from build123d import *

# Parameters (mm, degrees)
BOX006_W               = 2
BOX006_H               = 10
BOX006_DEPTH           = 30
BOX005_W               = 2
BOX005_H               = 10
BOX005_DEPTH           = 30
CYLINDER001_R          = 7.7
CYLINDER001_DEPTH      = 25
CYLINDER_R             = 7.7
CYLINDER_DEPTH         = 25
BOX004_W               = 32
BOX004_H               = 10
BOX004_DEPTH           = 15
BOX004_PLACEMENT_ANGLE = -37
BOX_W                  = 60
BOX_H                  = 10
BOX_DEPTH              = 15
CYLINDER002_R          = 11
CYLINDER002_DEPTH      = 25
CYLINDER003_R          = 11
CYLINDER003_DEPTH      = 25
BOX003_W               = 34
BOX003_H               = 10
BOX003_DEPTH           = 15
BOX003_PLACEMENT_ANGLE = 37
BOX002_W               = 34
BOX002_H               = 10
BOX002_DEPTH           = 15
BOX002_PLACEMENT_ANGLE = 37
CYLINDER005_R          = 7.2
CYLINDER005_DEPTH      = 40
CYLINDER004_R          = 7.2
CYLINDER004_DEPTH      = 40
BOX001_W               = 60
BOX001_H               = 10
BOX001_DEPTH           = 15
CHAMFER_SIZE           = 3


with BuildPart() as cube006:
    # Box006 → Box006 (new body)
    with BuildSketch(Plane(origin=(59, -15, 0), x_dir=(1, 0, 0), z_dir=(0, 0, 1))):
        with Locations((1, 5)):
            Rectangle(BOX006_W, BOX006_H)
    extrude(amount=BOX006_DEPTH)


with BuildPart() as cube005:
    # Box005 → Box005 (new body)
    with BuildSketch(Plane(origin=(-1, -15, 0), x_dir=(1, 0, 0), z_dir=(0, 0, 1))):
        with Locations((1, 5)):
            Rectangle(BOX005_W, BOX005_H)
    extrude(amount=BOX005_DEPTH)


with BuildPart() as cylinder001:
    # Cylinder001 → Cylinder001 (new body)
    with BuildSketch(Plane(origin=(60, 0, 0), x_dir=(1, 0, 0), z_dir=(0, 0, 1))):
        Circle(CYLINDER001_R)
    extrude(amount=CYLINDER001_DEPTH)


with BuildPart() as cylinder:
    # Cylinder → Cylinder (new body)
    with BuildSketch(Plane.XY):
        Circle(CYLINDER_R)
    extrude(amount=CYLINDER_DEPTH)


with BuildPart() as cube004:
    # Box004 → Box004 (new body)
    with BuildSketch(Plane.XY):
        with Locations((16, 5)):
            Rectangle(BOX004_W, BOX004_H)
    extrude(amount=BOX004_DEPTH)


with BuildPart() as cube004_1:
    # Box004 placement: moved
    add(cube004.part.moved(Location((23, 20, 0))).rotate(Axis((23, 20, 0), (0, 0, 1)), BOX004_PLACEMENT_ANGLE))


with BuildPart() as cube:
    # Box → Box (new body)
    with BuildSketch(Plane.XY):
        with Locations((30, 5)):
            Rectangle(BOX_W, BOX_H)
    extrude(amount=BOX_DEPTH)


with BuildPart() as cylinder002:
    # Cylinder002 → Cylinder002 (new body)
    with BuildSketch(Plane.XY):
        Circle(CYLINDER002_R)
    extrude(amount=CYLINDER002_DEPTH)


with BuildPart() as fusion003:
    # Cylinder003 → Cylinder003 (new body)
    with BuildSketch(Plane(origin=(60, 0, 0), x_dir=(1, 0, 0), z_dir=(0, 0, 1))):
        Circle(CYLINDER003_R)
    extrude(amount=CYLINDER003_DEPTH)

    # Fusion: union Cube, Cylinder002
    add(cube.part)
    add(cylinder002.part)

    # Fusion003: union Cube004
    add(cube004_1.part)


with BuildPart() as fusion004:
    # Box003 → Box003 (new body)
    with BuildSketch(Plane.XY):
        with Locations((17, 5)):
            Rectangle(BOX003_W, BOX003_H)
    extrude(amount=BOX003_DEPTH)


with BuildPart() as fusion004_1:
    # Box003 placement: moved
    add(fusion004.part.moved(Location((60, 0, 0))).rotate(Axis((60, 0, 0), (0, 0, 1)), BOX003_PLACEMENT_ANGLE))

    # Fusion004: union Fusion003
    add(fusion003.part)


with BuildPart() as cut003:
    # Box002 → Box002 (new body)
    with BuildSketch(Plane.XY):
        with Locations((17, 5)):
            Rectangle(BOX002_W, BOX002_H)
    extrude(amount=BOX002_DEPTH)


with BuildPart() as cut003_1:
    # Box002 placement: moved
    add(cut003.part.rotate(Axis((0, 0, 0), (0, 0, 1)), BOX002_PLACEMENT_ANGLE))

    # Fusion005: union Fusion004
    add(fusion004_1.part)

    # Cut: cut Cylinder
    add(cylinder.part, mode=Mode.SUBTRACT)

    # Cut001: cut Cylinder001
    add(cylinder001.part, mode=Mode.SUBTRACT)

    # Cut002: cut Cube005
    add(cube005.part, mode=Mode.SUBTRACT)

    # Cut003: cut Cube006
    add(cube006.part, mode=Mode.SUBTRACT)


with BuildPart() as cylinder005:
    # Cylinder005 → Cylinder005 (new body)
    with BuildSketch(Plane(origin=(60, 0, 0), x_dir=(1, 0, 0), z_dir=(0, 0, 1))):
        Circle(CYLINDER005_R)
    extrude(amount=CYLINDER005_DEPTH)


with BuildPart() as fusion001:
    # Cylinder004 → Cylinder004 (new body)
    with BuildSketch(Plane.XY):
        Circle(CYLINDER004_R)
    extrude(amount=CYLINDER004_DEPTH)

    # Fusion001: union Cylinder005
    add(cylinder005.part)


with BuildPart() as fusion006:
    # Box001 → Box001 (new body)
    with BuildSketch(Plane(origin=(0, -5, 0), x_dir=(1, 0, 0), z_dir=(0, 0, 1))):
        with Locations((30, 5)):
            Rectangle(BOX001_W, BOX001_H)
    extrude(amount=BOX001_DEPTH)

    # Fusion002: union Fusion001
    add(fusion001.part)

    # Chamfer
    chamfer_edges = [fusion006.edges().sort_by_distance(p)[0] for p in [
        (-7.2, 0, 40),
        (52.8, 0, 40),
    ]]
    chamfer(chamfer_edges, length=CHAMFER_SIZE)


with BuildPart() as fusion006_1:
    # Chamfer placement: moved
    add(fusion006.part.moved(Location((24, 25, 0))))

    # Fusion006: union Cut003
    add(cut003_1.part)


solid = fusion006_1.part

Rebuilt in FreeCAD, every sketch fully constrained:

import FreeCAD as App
import Part
import Sketcher
from FreeCAD import Vector


def edges_at(feature, points):
    """Names of the edges that pass closest to the given points."""
    edges = feature.Shape.Edges
    near = lambda p: min(range(len(edges)), key=lambda i: edges[i].distToShape(Part.Vertex(*p))[0])
    return sorted({f"Edge{near(p) + 1}" for p in points})

doc = App.newDocument("Part")
body = doc.addObject("PartDesign::Body", "Body")

sketch1 = body.newObject("Sketcher::SketchObject", "Sketch")
sketch1.AttachmentSupport = (doc.getObject("XY_Plane"), [""])
sketch1.MapMode = "FlatFace"
sketch1.addGeometry(Part.LineSegment(Vector(59, -5, 0), Vector(59, -15, 0)), False)
sketch1.addGeometry(Part.LineSegment(Vector(59, -15, 0), Vector(61, -15, 0)), False)
sketch1.addGeometry(Part.LineSegment(Vector(61, -15, 0), Vector(61, -5, 0)), False)
sketch1.addGeometry(Part.LineSegment(Vector(61, -5, 0), Vector(59, -5, 0)), False)
sketch1.addConstraint(Sketcher.Constraint("Coincident", 0, 2, 1, 1))
sketch1.addConstraint(Sketcher.Constraint("Coincident", 1, 2, 2, 1))
sketch1.addConstraint(Sketcher.Constraint("Coincident", 2, 2, 3, 1))
sketch1.addConstraint(Sketcher.Constraint("Coincident", 3, 2, 0, 1))
sketch1.addConstraint(Sketcher.Constraint("Vertical", 0))
sketch1.addConstraint(Sketcher.Constraint("Horizontal", 1))
sketch1.addConstraint(Sketcher.Constraint("Vertical", 2))
sketch1.addConstraint(Sketcher.Constraint("Horizontal", 3))
sketch1.addConstraint(Sketcher.Constraint("DistanceX", 1, 1, 1, 2, 2.0))
sketch1.addConstraint(Sketcher.Constraint("DistanceY", 0, 2, 0, 1, 10.0))
sketch1.addConstraint(Sketcher.Constraint("DistanceX", -1, 1, 0, 2, 59.0))
sketch1.addConstraint(Sketcher.Constraint("DistanceY", 0, 2, -1, 1, 15.0))
pad1 = body.newObject("PartDesign::Pad", "Pad")
pad1.Profile = sketch1
pad1.Length = 30
body2 = doc.addObject("PartDesign::Body", "Body001")

sketch2 = body2.newObject("Sketcher::SketchObject", "Sketch001")
sketch2.AttachmentSupport = (doc.getObject("XY_Plane001"), [""])
sketch2.MapMode = "FlatFace"
sketch2.addGeometry(Part.LineSegment(Vector(-1, -5, 0), Vector(-1, -15, 0)), False)
sketch2.addGeometry(Part.LineSegment(Vector(-1, -15, 0), Vector(1, -15, 0)), False)
sketch2.addGeometry(Part.LineSegment(Vector(1, -15, 0), Vector(1, -5, 0)), False)
sketch2.addGeometry(Part.LineSegment(Vector(1, -5, 0), Vector(-1, -5, 0)), False)
sketch2.addConstraint(Sketcher.Constraint("Coincident", 0, 2, 1, 1))
sketch2.addConstraint(Sketcher.Constraint("Coincident", 1, 2, 2, 1))
sketch2.addConstraint(Sketcher.Constraint("Coincident", 2, 2, 3, 1))
sketch2.addConstraint(Sketcher.Constraint("Coincident", 3, 2, 0, 1))
sketch2.addConstraint(Sketcher.Constraint("Vertical", 0))
sketch2.addConstraint(Sketcher.Constraint("Horizontal", 1))
sketch2.addConstraint(Sketcher.Constraint("Vertical", 2))
sketch2.addConstraint(Sketcher.Constraint("Horizontal", 3))
sketch2.addConstraint(Sketcher.Constraint("DistanceX", 1, 1, 1, 2, 2.0))
sketch2.addConstraint(Sketcher.Constraint("DistanceY", 0, 2, 0, 1, 10.0))
sketch2.addConstraint(Sketcher.Constraint("DistanceX", 0, 2, -1, 1, 1.0))
sketch2.addConstraint(Sketcher.Constraint("DistanceY", 0, 2, -1, 1, 15.0))
pad2 = body2.newObject("PartDesign::Pad", "Pad001")
pad2.Profile = sketch2
pad2.Length = 30
body3 = doc.addObject("PartDesign::Body", "Body002")

sketch3 = body3.newObject("Sketcher::SketchObject", "Sketch002")
sketch3.AttachmentSupport = (doc.getObject("XY_Plane002"), [""])
sketch3.MapMode = "FlatFace"
sketch3.addGeometry(Part.Circle(Vector(60, 0, 0), Vector(0, 0, 1), 8), False)
sketch3.addConstraint(Sketcher.Constraint("PointOnObject", 0, 3, -1))
sketch3.addConstraint(Sketcher.Constraint("Diameter", 0, 15.4))
sketch3.addConstraint(Sketcher.Constraint("DistanceX", -1, 1, 0, 3, 60.0))
pad3 = body3.newObject("PartDesign::Pad", "Pad002")
pad3.Profile = sketch3
pad3.Length = 25
body4 = doc.addObject("PartDesign::Body", "Body003")

sketch4 = body4.newObject("Sketcher::SketchObject", "Sketch003")
sketch4.AttachmentSupport = (doc.getObject("XY_Plane003"), [""])
sketch4.MapMode = "FlatFace"
sketch4.addGeometry(Part.Circle(Vector(0, 0, 0), Vector(0, 0, 1), 8), False)
sketch4.addConstraint(Sketcher.Constraint("Coincident", 0, 3, -1, 1))
sketch4.addConstraint(Sketcher.Constraint("Diameter", 0, 15.4))
pad4 = body4.newObject("PartDesign::Pad", "Pad003")
pad4.Profile = sketch4
pad4.Length = 25
body5 = doc.addObject("PartDesign::Body", "Body004")

sketch5 = body5.newObject("Sketcher::SketchObject", "Sketch004")
sketch5.AttachmentSupport = (doc.getObject("XY_Plane004"), [""])
sketch5.MapMode = "FlatFace"
sketch5.addGeometry(Part.LineSegment(Vector(0, 10, 0), Vector(0, 0, 0)), False)
sketch5.addGeometry(Part.LineSegment(Vector(0, 0, 0), Vector(32, 0, 0)), False)
sketch5.addGeometry(Part.LineSegment(Vector(32, 0, 0), Vector(32, 10, 0)), False)
sketch5.addGeometry(Part.LineSegment(Vector(32, 10, 0), Vector(0, 10, 0)), False)
sketch5.addConstraint(Sketcher.Constraint("Coincident", 0, 2, 1, 1))
sketch5.addConstraint(Sketcher.Constraint("Coincident", 1, 2, 2, 1))
sketch5.addConstraint(Sketcher.Constraint("Coincident", 2, 2, 3, 1))
sketch5.addConstraint(Sketcher.Constraint("Coincident", 3, 2, 0, 1))
sketch5.addConstraint(Sketcher.Constraint("Vertical", 0))
sketch5.addConstraint(Sketcher.Constraint("Horizontal", 1))
sketch5.addConstraint(Sketcher.Constraint("Vertical", 2))
sketch5.addConstraint(Sketcher.Constraint("Horizontal", 3))
sketch5.addConstraint(Sketcher.Constraint("Coincident", 0, 2, -1, 1))
sketch5.addConstraint(Sketcher.Constraint("DistanceX", 1, 1, 1, 2, 32.0))
sketch5.addConstraint(Sketcher.Constraint("DistanceY", 0, 2, 0, 1, 10.0))
pad5 = body5.newObject("PartDesign::Pad", "Pad004")
pad5.Profile = sketch5
pad5.Length = 15
body6 = doc.addObject("PartDesign::Body", "Body005")
doc.recompute()

body5.Placement = App.Placement(Vector(23, 20, 0), App.Rotation(Vector(0, 0, 1), 323))
boolean = body6.newObject("PartDesign::Boolean", "Boolean")
boolean.Type = "Fuse"
boolean.addObjects([body5])
body7 = doc.addObject("PartDesign::Body", "Body006")

sketch6 = body7.newObject("Sketcher::SketchObject", "Sketch005")
sketch6.AttachmentSupport = (doc.getObject("XY_Plane006"), [""])
sketch6.MapMode = "FlatFace"
sketch6.addGeometry(Part.LineSegment(Vector(0, 10, 0), Vector(0, 0, 0)), False)
sketch6.addGeometry(Part.LineSegment(Vector(0, 0, 0), Vector(60, 0, 0)), False)
sketch6.addGeometry(Part.LineSegment(Vector(60, 0, 0), Vector(60, 10, 0)), False)
sketch6.addGeometry(Part.LineSegment(Vector(60, 10, 0), Vector(0, 10, 0)), False)
sketch6.addConstraint(Sketcher.Constraint("Coincident", 0, 2, 1, 1))
sketch6.addConstraint(Sketcher.Constraint("Coincident", 1, 2, 2, 1))
sketch6.addConstraint(Sketcher.Constraint("Coincident", 2, 2, 3, 1))
sketch6.addConstraint(Sketcher.Constraint("Coincident", 3, 2, 0, 1))
sketch6.addConstraint(Sketcher.Constraint("Vertical", 0))
sketch6.addConstraint(Sketcher.Constraint("Horizontal", 1))
sketch6.addConstraint(Sketcher.Constraint("Vertical", 2))
sketch6.addConstraint(Sketcher.Constraint("Horizontal", 3))
sketch6.addConstraint(Sketcher.Constraint("Coincident", 0, 2, -1, 1))
sketch6.addConstraint(Sketcher.Constraint("DistanceX", 1, 1, 1, 2, 60.0))
sketch6.addConstraint(Sketcher.Constraint("DistanceY", 0, 2, 0, 1, 10.0))
pad6 = body7.newObject("PartDesign::Pad", "Pad005")
pad6.Profile = sketch6
pad6.Length = 15
body8 = doc.addObject("PartDesign::Body", "Body007")

sketch7 = body8.newObject("Sketcher::SketchObject", "Sketch006")
sketch7.AttachmentSupport = (doc.getObject("XY_Plane007"), [""])
sketch7.MapMode = "FlatFace"
sketch7.addGeometry(Part.Circle(Vector(0, 0, 0), Vector(0, 0, 1), 11), False)
sketch7.addConstraint(Sketcher.Constraint("Coincident", 0, 3, -1, 1))
sketch7.addConstraint(Sketcher.Constraint("Diameter", 0, 22.0))
pad7 = body8.newObject("PartDesign::Pad", "Pad006")
pad7.Profile = sketch7
pad7.Length = 25
body9 = doc.addObject("PartDesign::Body", "Body008")

sketch8 = body9.newObject("Sketcher::SketchObject", "Sketch007")
sketch8.AttachmentSupport = (doc.getObject("XY_Plane008"), [""])
sketch8.MapMode = "FlatFace"
sketch8.addGeometry(Part.Circle(Vector(60, 0, 0), Vector(0, 0, 1), 11), False)
sketch8.addConstraint(Sketcher.Constraint("PointOnObject", 0, 3, -1))
sketch8.addConstraint(Sketcher.Constraint("Diameter", 0, 22.0))
sketch8.addConstraint(Sketcher.Constraint("DistanceX", -1, 1, 0, 3, 60.0))
pad8 = body9.newObject("PartDesign::Pad", "Pad007")
pad8.Profile = sketch8
pad8.Length = 25
doc.recompute()

boolean2 = body9.newObject("PartDesign::Boolean", "Boolean001")
boolean2.Type = "Fuse"
boolean2.addObjects([body7])
doc.recompute()

boolean3 = body9.newObject("PartDesign::Boolean", "Boolean002")
boolean3.Type = "Fuse"
boolean3.addObjects([body8])
doc.recompute()

boolean4 = body9.newObject("PartDesign::Boolean", "Boolean003")
boolean4.Type = "Fuse"
boolean4.addObjects([body6])
body10 = doc.addObject("PartDesign::Body", "Body009")

sketch9 = body10.newObject("Sketcher::SketchObject", "Sketch008")
sketch9.AttachmentSupport = (doc.getObject("XY_Plane009"), [""])
sketch9.MapMode = "FlatFace"
sketch9.addGeometry(Part.LineSegment(Vector(0, 10, 0), Vector(0, 0, 0)), False)
sketch9.addGeometry(Part.LineSegment(Vector(0, 0, 0), Vector(34, 0, 0)), False)
sketch9.addGeometry(Part.LineSegment(Vector(34, 0, 0), Vector(34, 10, 0)), False)
sketch9.addGeometry(Part.LineSegment(Vector(34, 10, 0), Vector(0, 10, 0)), False)
sketch9.addConstraint(Sketcher.Constraint("Coincident", 0, 2, 1, 1))
sketch9.addConstraint(Sketcher.Constraint("Coincident", 1, 2, 2, 1))
sketch9.addConstraint(Sketcher.Constraint("Coincident", 2, 2, 3, 1))
sketch9.addConstraint(Sketcher.Constraint("Coincident", 3, 2, 0, 1))
sketch9.addConstraint(Sketcher.Constraint("Vertical", 0))
sketch9.addConstraint(Sketcher.Constraint("Horizontal", 1))
sketch9.addConstraint(Sketcher.Constraint("Vertical", 2))
sketch9.addConstraint(Sketcher.Constraint("Horizontal", 3))
sketch9.addConstraint(Sketcher.Constraint("Coincident", 0, 2, -1, 1))
sketch9.addConstraint(Sketcher.Constraint("DistanceX", 1, 1, 1, 2, 34.0))
sketch9.addConstraint(Sketcher.Constraint("DistanceY", 0, 2, 0, 1, 10.0))
pad9 = body10.newObject("PartDesign::Pad", "Pad008")
pad9.Profile = sketch9
pad9.Length = 15
body11 = doc.addObject("PartDesign::Body", "Body010")
doc.recompute()

body10.Placement = App.Placement(Vector(60, 0, 0), App.Rotation(Vector(0, 0, 1), 37))
boolean5 = body11.newObject("PartDesign::Boolean", "Boolean004")
boolean5.Type = "Fuse"
boolean5.addObjects([body10])
doc.recompute()

boolean6 = body11.newObject("PartDesign::Boolean", "Boolean005")
boolean6.Type = "Fuse"
boolean6.addObjects([body9])
body12 = doc.addObject("PartDesign::Body", "Body011")

sketch10 = body12.newObject("Sketcher::SketchObject", "Sketch009")
sketch10.AttachmentSupport = (doc.getObject("XY_Plane011"), [""])
sketch10.MapMode = "FlatFace"
sketch10.addGeometry(Part.LineSegment(Vector(0, 10, 0), Vector(0, 0, 0)), False)
sketch10.addGeometry(Part.LineSegment(Vector(0, 0, 0), Vector(34, 0, 0)), False)
sketch10.addGeometry(Part.LineSegment(Vector(34, 0, 0), Vector(34, 10, 0)), False)
sketch10.addGeometry(Part.LineSegment(Vector(34, 10, 0), Vector(0, 10, 0)), False)
sketch10.addConstraint(Sketcher.Constraint("Coincident", 0, 2, 1, 1))
sketch10.addConstraint(Sketcher.Constraint("Coincident", 1, 2, 2, 1))
sketch10.addConstraint(Sketcher.Constraint("Coincident", 2, 2, 3, 1))
sketch10.addConstraint(Sketcher.Constraint("Coincident", 3, 2, 0, 1))
sketch10.addConstraint(Sketcher.Constraint("Vertical", 0))
sketch10.addConstraint(Sketcher.Constraint("Horizontal", 1))
sketch10.addConstraint(Sketcher.Constraint("Vertical", 2))
sketch10.addConstraint(Sketcher.Constraint("Horizontal", 3))
sketch10.addConstraint(Sketcher.Constraint("Coincident", 0, 2, -1, 1))
sketch10.addConstraint(Sketcher.Constraint("DistanceX", 1, 1, 1, 2, 34.0))
sketch10.addConstraint(Sketcher.Constraint("DistanceY", 0, 2, 0, 1, 10.0))
pad10 = body12.newObject("PartDesign::Pad", "Pad009")
pad10.Profile = sketch10
pad10.Length = 15
body13 = doc.addObject("PartDesign::Body", "Body012")
doc.recompute()

body12.Placement = App.Placement(Vector(0, 0, 0), App.Rotation(Vector(0, 0, 1), 37))
boolean7 = body13.newObject("PartDesign::Boolean", "Boolean006")
boolean7.Type = "Fuse"
boolean7.addObjects([body12])
doc.recompute()

boolean8 = body13.newObject("PartDesign::Boolean", "Boolean007")
boolean8.Type = "Fuse"
boolean8.addObjects([body11])
doc.recompute()

boolean9 = body13.newObject("PartDesign::Boolean", "Boolean008")
boolean9.Type = "Cut"
boolean9.addObjects([body4])
doc.recompute()

boolean10 = body13.newObject("PartDesign::Boolean", "Boolean009")
boolean10.Type = "Cut"
boolean10.addObjects([body3])
doc.recompute()

boolean11 = body13.newObject("PartDesign::Boolean", "Boolean010")
boolean11.Type = "Cut"
boolean11.addObjects([body2])
doc.recompute()

boolean12 = body13.newObject("PartDesign::Boolean", "Boolean011")
boolean12.Type = "Cut"
boolean12.addObjects([body])
body14 = doc.addObject("PartDesign::Body", "Body013")

sketch11 = body14.newObject("Sketcher::SketchObject", "Sketch010")
sketch11.AttachmentSupport = (doc.getObject("XY_Plane013"), [""])
sketch11.MapMode = "FlatFace"
sketch11.addGeometry(Part.Circle(Vector(60, 0, 0), Vector(0, 0, 1), 7), False)
sketch11.addConstraint(Sketcher.Constraint("PointOnObject", 0, 3, -1))
sketch11.addConstraint(Sketcher.Constraint("Diameter", 0, 14.4))
sketch11.addConstraint(Sketcher.Constraint("DistanceX", -1, 1, 0, 3, 60.0))
pad11 = body14.newObject("PartDesign::Pad", "Pad010")
pad11.Profile = sketch11
pad11.Length = 40
body15 = doc.addObject("PartDesign::Body", "Body014")
body15.AllowCompound = True

sketch12 = body15.newObject("Sketcher::SketchObject", "Sketch011")
sketch12.AttachmentSupport = (doc.getObject("XY_Plane014"), [""])
sketch12.MapMode = "FlatFace"
sketch12.addGeometry(Part.Circle(Vector(0, 0, 0), Vector(0, 0, 1), 7), False)
sketch12.addConstraint(Sketcher.Constraint("Coincident", 0, 3, -1, 1))
sketch12.addConstraint(Sketcher.Constraint("Diameter", 0, 14.4))
pad12 = body15.newObject("PartDesign::Pad", "Pad011")
pad12.Profile = sketch12
pad12.Length = 40
doc.recompute()

boolean13 = body15.newObject("PartDesign::Boolean", "Boolean012")
boolean13.Type = "Fuse"
boolean13.addObjects([body14])
body16 = doc.addObject("PartDesign::Body", "Body015")

sketch13 = body16.newObject("Sketcher::SketchObject", "Sketch012")
sketch13.AttachmentSupport = (doc.getObject("XY_Plane015"), [""])
sketch13.MapMode = "FlatFace"
sketch13.addGeometry(Part.LineSegment(Vector(0, 5, 0), Vector(0, -5, 0)), False)
sketch13.addGeometry(Part.LineSegment(Vector(0, -5, 0), Vector(60, -5, 0)), False)
sketch13.addGeometry(Part.LineSegment(Vector(60, -5, 0), Vector(60, 5, 0)), False)
sketch13.addGeometry(Part.LineSegment(Vector(60, 5, 0), Vector(0, 5, 0)), False)
sketch13.addConstraint(Sketcher.Constraint("Coincident", 0, 2, 1, 1))
sketch13.addConstraint(Sketcher.Constraint("Coincident", 1, 2, 2, 1))
sketch13.addConstraint(Sketcher.Constraint("Coincident", 2, 2, 3, 1))
sketch13.addConstraint(Sketcher.Constraint("Coincident", 3, 2, 0, 1))
sketch13.addConstraint(Sketcher.Constraint("Vertical", 0))
sketch13.addConstraint(Sketcher.Constraint("Horizontal", 1))
sketch13.addConstraint(Sketcher.Constraint("Vertical", 2))
sketch13.addConstraint(Sketcher.Constraint("Horizontal", 3))
sketch13.addConstraint(Sketcher.Constraint("Symmetric", 0, 2, 3, 2, -1, 1))
sketch13.addConstraint(Sketcher.Constraint("DistanceX", 1, 1, 1, 2, 60.0))
sketch13.addConstraint(Sketcher.Constraint("DistanceY", 0, 2, 0, 1, 10.0))
pad13 = body16.newObject("PartDesign::Pad", "Pad012")
pad13.Profile = sketch13
pad13.Length = 15
doc.recompute()

boolean14 = body16.newObject("PartDesign::Boolean", "Boolean013")
boolean14.Type = "Fuse"
boolean14.addObjects([body15])
doc.recompute()

chamfer = body16.newObject("PartDesign::Chamfer", "Chamfer")
chamfer.Base = (boolean14, edges_at(boolean14, [(-7.2, 0, 40), (52.8, 0, 40)]))
chamfer.Size = 3
body17 = doc.addObject("PartDesign::Body", "Body016")
doc.recompute()

body16.Placement = App.Placement(Vector(24, 25, 0), App.Rotation(Vector(0, 0, 1), 0))
boolean15 = body17.newObject("PartDesign::Boolean", "Boolean014")
boolean15.Type = "Fuse"
boolean15.addObjects([body16])
doc.recompute()

boolean16 = body17.newObject("PartDesign::Boolean", "Boolean015")
boolean16.Type = "Fuse"
boolean16.addObjects([body13])

doc.recompute()
